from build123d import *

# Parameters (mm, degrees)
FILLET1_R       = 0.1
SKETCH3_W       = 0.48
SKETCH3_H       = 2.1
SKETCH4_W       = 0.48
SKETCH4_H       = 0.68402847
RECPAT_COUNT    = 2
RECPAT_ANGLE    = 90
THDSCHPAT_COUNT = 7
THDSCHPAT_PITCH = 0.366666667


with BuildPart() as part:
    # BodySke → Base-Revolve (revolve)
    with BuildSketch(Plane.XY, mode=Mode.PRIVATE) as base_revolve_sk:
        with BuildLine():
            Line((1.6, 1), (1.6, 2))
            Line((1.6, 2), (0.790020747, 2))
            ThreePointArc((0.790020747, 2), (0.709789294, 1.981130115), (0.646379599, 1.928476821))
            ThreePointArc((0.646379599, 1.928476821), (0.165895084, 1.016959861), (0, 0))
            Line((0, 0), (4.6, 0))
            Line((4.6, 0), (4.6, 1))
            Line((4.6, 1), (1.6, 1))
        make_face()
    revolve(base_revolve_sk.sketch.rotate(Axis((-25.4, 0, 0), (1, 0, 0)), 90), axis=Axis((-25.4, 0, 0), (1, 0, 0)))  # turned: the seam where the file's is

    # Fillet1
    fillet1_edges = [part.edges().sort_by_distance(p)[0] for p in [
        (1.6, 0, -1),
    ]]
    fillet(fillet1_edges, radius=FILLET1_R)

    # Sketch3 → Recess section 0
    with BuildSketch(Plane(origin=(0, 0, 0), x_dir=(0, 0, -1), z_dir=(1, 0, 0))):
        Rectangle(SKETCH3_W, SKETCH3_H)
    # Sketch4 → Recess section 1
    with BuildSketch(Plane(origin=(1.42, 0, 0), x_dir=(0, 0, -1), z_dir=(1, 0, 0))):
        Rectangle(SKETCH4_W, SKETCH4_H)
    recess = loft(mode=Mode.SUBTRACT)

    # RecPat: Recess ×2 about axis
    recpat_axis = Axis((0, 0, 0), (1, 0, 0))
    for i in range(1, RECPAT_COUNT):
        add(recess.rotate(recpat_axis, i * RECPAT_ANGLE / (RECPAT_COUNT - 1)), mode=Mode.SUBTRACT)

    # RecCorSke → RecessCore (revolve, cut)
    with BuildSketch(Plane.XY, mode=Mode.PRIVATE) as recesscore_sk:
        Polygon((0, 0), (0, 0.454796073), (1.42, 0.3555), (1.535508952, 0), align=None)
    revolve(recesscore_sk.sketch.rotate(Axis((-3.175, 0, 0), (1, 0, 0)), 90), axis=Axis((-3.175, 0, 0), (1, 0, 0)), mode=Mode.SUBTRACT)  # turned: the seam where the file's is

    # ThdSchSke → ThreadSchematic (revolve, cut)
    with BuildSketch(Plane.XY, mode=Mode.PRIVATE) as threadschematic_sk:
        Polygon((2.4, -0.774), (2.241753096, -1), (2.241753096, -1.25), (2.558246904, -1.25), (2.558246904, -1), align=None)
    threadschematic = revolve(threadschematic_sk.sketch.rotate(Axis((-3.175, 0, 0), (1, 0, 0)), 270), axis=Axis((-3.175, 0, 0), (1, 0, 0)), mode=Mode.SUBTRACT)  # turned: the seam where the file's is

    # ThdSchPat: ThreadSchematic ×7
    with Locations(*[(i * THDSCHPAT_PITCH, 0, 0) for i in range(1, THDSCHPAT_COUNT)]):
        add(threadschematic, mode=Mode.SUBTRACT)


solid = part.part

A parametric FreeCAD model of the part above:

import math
import FreeCAD as App
import Part
import Sketcher

V = App.Vector
Q = App.Units.Quantity


def edges_at(feature, points):
    """Names of the edges that pass closest to the given points."""
    edges = feature.Shape.Edges
    near = lambda p: min(range(len(edges)), key=lambda i: edges[i].distToShape(Part.Vertex(*p))[0])
    return sorted({f"Edge{near(p) + 1}" for p in points})

doc = App.newDocument("Part")
params = doc.addObject("Spreadsheet::Sheet", "Params")
for row, (alias, value) in enumerate([
    ("sketch1_radius", "3.2 mm"),
    ("sketch1_width", "3 mm"),
    ("sketch1_height", "1 mm"),
    ("sketch1_radius2", "0.18 mm"),
    ("sketch1_width2", "4.6 mm"),
    ("revolution_angle", "360 deg"),
    ("fillet_radius", "0.1 mm"),
    ("sketch2_width", "2.1 mm"),
    ("sketch2_height", "0.48 mm"),
    ("sketch3_height", "0.48 mm"),
    ("groove_angle", "360 deg"),
    ("sketch5_height", "0.25 mm"),
    ("groove2_angle", "360 deg"),
    ("linearpattern_pitch", "0.366667 mm"),
], start=1):
    params.set(f"A{row}", alias)
    params.set(f"B{row}", "=" + value)
    params.setAlias(f"B{row}", alias)

body = doc.addObject("PartDesign::Body", "Body")

sketch1 = body.newObject("Sketcher::SketchObject", "Sketch")
sketch1.AttachmentSupport = (doc.getObject("XY_Plane"), [""])
sketch1.MapMode = "FlatFace"
sketch1.addGeometry([
    Part.LineSegment(V(1.6, 1, 0), V(1.6, 2, 0)),
    Part.LineSegment(V(1.6, 2, 0), V(0.790021, 2, 0)),
    Part.ArcOfCircle(Part.Circle(V(0.790021, 1.82, 0), V(0, 0, 1), 0.18), math.radians(90), math.radians(142.940145)),
    Part.ArcOfCircle(Part.Circle(V(3.2, 0, 0), V(0, 0, 1), 3.2), math.radians(142.940145), math.radians(180)),
    Part.LineSegment(V(0, 0, 0), V(4.6, 0, 0)),
    Part.LineSegment(V(4.6, 0, 0), V(4.6, 1, 0)),
    Part.LineSegment(V(4.6, 1, 0), V(1.6, 1, 0)),
], False)
sketch1.addConstraint([
    Sketcher.Constraint("Coincident", 0, 2, 1, 1),
    Sketcher.Constraint("Tangent", 1, 2, 2, 1),
    Sketcher.Constraint("Tangent", 2, 2, 3, 1),
    Sketcher.Constraint("Coincident", 3, 2, 4, 1),
    Sketcher.Constraint("Coincident", 4, 2, 5, 1),
    Sketcher.Constraint("Coincident", 5, 2, 6, 1),
    Sketcher.Constraint("Coincident", 6, 2, 0, 1),
    Sketcher.Constraint("Vertical", 0),
    Sketcher.Constraint("Horizontal", 1),
    Sketcher.Constraint("Horizontal", 4),
    Sketcher.Constraint("Vertical", 5),
    Sketcher.Constraint("Horizontal", 6),
    Sketcher.Constraint("Coincident", 3, 2, -1, 1),
    Sketcher.Constraint("PointOnObject", 3, 3, -1),
    Sketcher.Constraint("Equal", 0, 5),
    Sketcher.Constraint("Radius", 3, 3.2),
    Sketcher.Constraint("DistanceX", 6, 2, 6, 1, 3.0),
    Sketcher.Constraint("DistanceY", 0, 1, 0, 2, 1.0),
    Sketcher.Constraint("Radius", 2, 0.18),
    Sketcher.Constraint("DistanceX", 4, 1, 4, 2, 4.6),
])
sketch1.setExpression("Constraints[15]", "Params.sketch1_radius")
sketch1.setExpression("Constraints[16]", "Params.sketch1_width")
sketch1.setExpression("Constraints[17]", "Params.sketch1_height")
sketch1.setExpression("Constraints[18]", "Params.sketch1_radius2")
sketch1.setExpression("Constraints[19]", "Params.sketch1_width2")
revolution = body.newObject("PartDesign::Revolution", "Revolution")
revolution.Profile = sketch1
revolution.ReferenceAxis = (sketch1, ["H_Axis"])
revolution.setExpression("Angle", "Params.revolution_angle")
doc.recompute()

fillet = body.newObject("PartDesign::Fillet", "Fillet")
fillet.Base = (revolution, edges_at(revolution, [(1.6, 0, -1)]))
fillet.setExpression("Radius", "Params.fillet_radius")

sketch2 = body.newObject("Sketcher::SketchObject", "Sketch001")
sketch2.AttachmentSupport = (doc.getObject("YZ_Plane"), [""])
sketch2.MapMode = "FlatFace"
sketch2.addGeometry([
    Part.LineSegment(V(1.05, 0.24, 0), V(-1.05, 0.24, 0)),
    Part.LineSegment(V(-1.05, 0.24, 0), V(-1.05, -0.24, 0)),
    Part.LineSegment(V(-1.05, -0.24, 0), V(1.05, -0.24, 0)),
    Part.LineSegment(V(1.05, -0.24, 0), V(1.05, 0.24, 0)),
], False)
sketch2.addConstraint([
    Sketcher.Constraint("Coincident", 0, 2, 1, 1),
    Sketcher.Constraint("Coincident", 1, 2, 2, 1),
    Sketcher.Constraint("Coincident", 2, 2, 3, 1),
    Sketcher.Constraint("Coincident", 3, 2, 0, 1),
    Sketcher.Constraint("Horizontal", 0),
    Sketcher.Constraint("Vertical", 1),
    Sketcher.Constraint("Horizontal", 2),
    Sketcher.Constraint("Vertical", 3),
    Sketcher.Constraint("Symmetric", 0, 2, 2, 2, -1, 1),
    Sketcher.Constraint("DistanceX", 0, 2, 0, 1, 2.1),
    Sketcher.Constraint("DistanceY", 1, 2, 1, 1, 0.48),
])
sketch2.setExpression("Constraints[9]", "Params.sketch2_width")
sketch2.setExpression("Constraints[10]", "Params.sketch2_height")

sketch3 = body.newObject("Sketcher::SketchObject", "Sketch002")
sketch3.AttachmentSupport = (doc.getObject("YZ_Plane"), [""])
sketch3.MapMode = "FlatFace"
sketch3.AttachmentOffset = App.Placement(V(0, 0, 1.42), App.Rotation())
sketch3.addGeometry([
    Part.LineSegment(V(0.342014, 0.24, 0), V(-0.342014, 0.24, 0)),
    Part.LineSegment(V(-0.342014, 0.24, 0), V(-0.342014, -0.24, 0)),
    Part.LineSegment(V(-0.342014, -0.24, 0), V(0.342014, -0.24, 0)),
    Part.LineSegment(V(0.342014, -0.24, 0), V(0.342014, 0.24, 0)),
], False)
sketch3.addConstraint([
    Sketcher.Constraint("Coincident", 0, 2, 1, 1),
    Sketcher.Constraint("Coincident", 1, 2, 2, 1),
    Sketcher.Constraint("Coincident", 2, 2, 3, 1),
    Sketcher.Constraint("Coincident", 3, 2, 0, 1),
    Sketcher.Constraint("Horizontal", 0),
    Sketcher.Constraint("Vertical", 1),
    Sketcher.Constraint("Horizontal", 2),
    Sketcher.Constraint("Vertical", 3),
    Sketcher.Constraint("Symmetric", 0, 2, 2, 2, -1, 1),
    Sketcher.Constraint("DistanceY", 1, 2, 1, 1, 0.48),
    Sketcher.Constraint("DistanceX", 0, 2, 0, 1, 0.684028),
])
sketch3.setExpression("Constraints[9]", "Params.sketch3_height")

subtractiveloft = body.newObject("PartDesign::SubtractiveLoft", "SubtractiveLoft")
subtractiveloft.Profile = sketch2
subtractiveloft.Sections = [sketch3]
doc.recompute()

polarpattern = body.newObject("PartDesign::PolarPattern", "PolarPattern")
polarpattern.Originals = [subtractiveloft]
polarpattern.Axis = (doc.getObject("X_Axis"), [""])
polarpattern.Angle = 90
polarpattern.Occurrences = 2
body.Tip = polarpattern

sketch4 = body.newObject("Sketcher::SketchObject", "Sketch003")
sketch4.AttachmentSupport = (doc.getObject("XY_Plane"), [""])
sketch4.MapMode = "FlatFace"
sketch4.addGeometry([
    Part.LineSegment(V(0, 0.454796, 0), V(0, 0, 0)),
    Part.LineSegment(V(0, 0, 0), V(1.535509, 0, 0)),
    Part.LineSegment(V(1.535509, 0, 0), V(1.42, 0.3555, 0)),
    Part.LineSegment(V(1.42, 0.3555, 0), V(0, 0.454796, 0)),
], False)
sketch4.addConstraint([
    Sketcher.Constraint("Coincident", 0, 2, 1, 1),
    Sketcher.Constraint("Coincident", 1, 2, 2, 1),
    Sketcher.Constraint("Coincident", 2, 2, 3, 1),
    Sketcher.Constraint("Coincident", 3, 2, 0, 1),
    Sketcher.Constraint("Vertical", 0),
    Sketcher.Constraint("Horizontal", 1),
    Sketcher.Constraint("Coincident", 0, 2, -1, 1),
    Sketcher.Constraint("Angle", 2, Q("108 deg")),
    Sketcher.Constraint("Angle", 3, Q("176 deg")),
    Sketcher.Constraint("DistanceX", -1, 1, 2, 2, 1.42),
    Sketcher.Constraint("DistanceX", 1, 1, 1, 2, 1.535509),
])
groove = body.newObject("PartDesign::Groove", "Groove")
groove.Profile = sketch4
groove.ReferenceAxis = (sketch4, ["H_Axis"])
groove.setExpression("Angle", "Params.groove_angle")

sketch5 = body.newObject("Sketcher::SketchObject", "Sketch004")
sketch5.AttachmentSupport = (doc.getObject("XY_Plane"), [""])
sketch5.MapMode = "FlatFace"
sketch5.addGeometry([
    Part.LineSegment(V(2.4, -0.774, 0), V(2.241753, -1, 0)),
    Part.LineSegment(V(2.241753, -1, 0), V(2.241753, -1.25, 0)),
    Part.LineSegment(V(2.241753, -1.25, 0), V(2.558247, -1.25, 0)),
    Part.LineSegment(V(2.558247, -1.25, 0), V(2.558247, -1, 0)),
    Part.LineSegment(V(2.558247, -1, 0), V(2.4, -0.774, 0)),
], False)
sketch5.addConstraint([
    Sketcher.Constraint("Coincident", 0, 2, 1, 1),
    Sketcher.Constraint("Coincident", 1, 2, 2, 1),
    Sketcher.Constraint("Coincident", 2, 2, 3, 1),
    Sketcher.Constraint("Coincident", 3, 2, 4, 1),
    Sketcher.Constraint("Coincident", 4, 2, 0, 1),
    Sketcher.Constraint("Vertical", 1),
    Sketcher.Constraint("Horizontal", 2),
    Sketcher.Constraint("Vertical", 3),
    Sketcher.Constraint("Horizontal", 0, 2, 3, 2),
    Sketcher.Constraint("Equal", 0, 4),
    Sketcher.Constraint("Angle", 0, Q("-125 deg")),
    Sketcher.Constraint("DistanceY", 0, 2, -1, 1, 1.0),
    Sketcher.Constraint("DistanceY", 1, 2, 1, 1, 0.25),
    Sketcher.Constraint("DistanceX", -1, 1, 4, 2, 2.4),
    Sketcher.Constraint("DistanceY", 4, 2, -1, 1, 0.774),
])
sketch5.setExpression("Constraints[12]", "Params.sketch5_height")
groove2 = body.newObject("PartDesign::Groove", "Groove001")
groove2.Profile = sketch5
groove2.ReferenceAxis = (sketch5, ["H_Axis"])
groove2.setExpression("Angle", "Params.groove2_angle")
doc.recompute()

linearpattern = body.newObject("PartDesign::LinearPattern", "LinearPattern")
linearpattern.Originals = [groove2]
linearpattern.Direction = (doc.getObject("X_Axis"), [""])
linearpattern.Mode = "offset"
linearpattern.setExpression("Offset", "Params.linearpattern_pitch")
linearpattern.Occurrences = 7
body.Tip = linearpattern

doc.recompute()
